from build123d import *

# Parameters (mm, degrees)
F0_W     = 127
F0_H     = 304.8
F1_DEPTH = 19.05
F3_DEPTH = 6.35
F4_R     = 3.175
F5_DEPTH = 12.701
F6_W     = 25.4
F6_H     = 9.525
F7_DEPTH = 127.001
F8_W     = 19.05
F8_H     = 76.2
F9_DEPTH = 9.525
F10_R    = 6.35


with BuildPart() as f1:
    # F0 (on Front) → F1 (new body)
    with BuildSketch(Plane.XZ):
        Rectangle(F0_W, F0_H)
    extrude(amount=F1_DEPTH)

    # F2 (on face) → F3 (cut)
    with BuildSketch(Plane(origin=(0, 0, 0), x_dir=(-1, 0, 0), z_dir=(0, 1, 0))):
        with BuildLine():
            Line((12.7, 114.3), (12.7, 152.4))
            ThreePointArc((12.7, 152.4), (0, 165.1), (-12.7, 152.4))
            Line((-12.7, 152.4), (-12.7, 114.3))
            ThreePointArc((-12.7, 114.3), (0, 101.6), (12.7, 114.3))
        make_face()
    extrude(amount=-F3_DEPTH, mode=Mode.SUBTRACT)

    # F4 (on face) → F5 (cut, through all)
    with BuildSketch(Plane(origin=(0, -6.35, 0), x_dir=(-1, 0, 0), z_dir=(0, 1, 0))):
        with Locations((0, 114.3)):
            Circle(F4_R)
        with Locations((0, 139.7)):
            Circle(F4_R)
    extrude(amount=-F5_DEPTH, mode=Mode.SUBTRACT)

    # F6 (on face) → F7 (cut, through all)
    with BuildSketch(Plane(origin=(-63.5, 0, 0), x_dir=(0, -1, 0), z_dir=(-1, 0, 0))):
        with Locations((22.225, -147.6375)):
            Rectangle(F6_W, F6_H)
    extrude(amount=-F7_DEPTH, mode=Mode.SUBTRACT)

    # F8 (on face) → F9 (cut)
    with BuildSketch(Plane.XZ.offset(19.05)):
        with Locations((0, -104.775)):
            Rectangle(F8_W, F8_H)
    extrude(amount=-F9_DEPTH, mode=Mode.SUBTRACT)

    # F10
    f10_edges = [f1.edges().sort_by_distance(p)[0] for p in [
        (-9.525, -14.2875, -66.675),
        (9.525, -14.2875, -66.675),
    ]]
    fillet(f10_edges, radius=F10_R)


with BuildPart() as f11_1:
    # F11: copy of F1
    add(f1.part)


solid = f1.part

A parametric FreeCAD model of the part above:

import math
import FreeCAD as App
import Part
import Sketcher
Q = App.Units.Quantity


def edges_at(feature, points):
    """Names of the edges that pass closest to the given points."""
    edges = feature.Shape.Edges
    near = lambda p: min(range(len(edges)), key=lambda i: edges[i].distToShape(Part.Vertex(*p))[0])
    return sorted({f"Edge{near(p) + 1}" for p in points})


def add_polygon(sketch, points):
    """Adds a closed chain of lines whose ends are joined by coincident constraints."""
    first, n = sketch.GeometryCount, len(points)
    for a, b in zip(points, points[1:] + points[:1]):
        sketch.addGeometry(Part.LineSegment(App.Vector(*a, 0), App.Vector(*b, 0)), False)
    for i in range(n):
        sketch.addConstraint(Sketcher.Constraint("Coincident", first + i, 2, first + (i + 1) % n, 1))

doc = App.newDocument("Part")
body = doc.addObject("PartDesign::Body", "Body")

# Sketch on XZ plane
sketch1 = doc.addObject("Sketcher::SketchObject", "Sketch")
body.addObject(sketch1)
sketch1.AttachmentSupport = (doc.XZ_Plane, [""])
sketch1.MapMode = "FlatFace"
add_polygon(sketch1, [(-64, 152), (-64, -152), (64, -152), (64, 152)])  # lines 0-3
sketch1.addConstraint(Sketcher.Constraint("Vertical", 0))
sketch1.addConstraint(Sketcher.Constraint("Horizontal", 1))
sketch1.addConstraint(Sketcher.Constraint("Vertical", 2))
sketch1.addConstraint(Sketcher.Constraint("Horizontal", 3))
sketch1.addConstraint(Sketcher.Constraint("Symmetric", 0, 2, 2, 2, -1, 1))
sketch1.addConstraint(Sketcher.Constraint("DistanceX", 1, 1, 1, 2, Q("5 in")))
sketch1.addConstraint(Sketcher.Constraint("DistanceY", 0, 2, 0, 1, Q("12 in")))
pad1 = doc.addObject("PartDesign::Pad", "Pad")
body.addObject(pad1)
pad1.Profile = sketch1
pad1.Length = Q("0.75 in")

# Sketch on XZ plane
sketch2 = doc.addObject("Sketcher::SketchObject", "Sketch001")
body.addObject(sketch2)
sketch2.AttachmentSupport = (doc.XZ_Plane, [""])
sketch2.MapMode = "FlatFace"
sketch2.addGeometry(Part.LineSegment(App.Vector(-13, 114, 0), App.Vector(-13, 152, 0)), False)
sketch2.addGeometry(Part.ArcOfCircle(Part.Circle(App.Vector(0, 152, 0), App.Vector(0, 0, 1), 13), math.radians(0), math.radians(180)), False)
sketch2.addGeometry(Part.LineSegment(App.Vector(13, 152, 0), App.Vector(13, 114, 0)), False)
sketch2.addGeometry(Part.ArcOfCircle(Part.Circle(App.Vector(0, 114, 0), App.Vector(0, 0, 1), 13), math.radians(180), math.radians(360)), False)
sketch2.addConstraint(Sketcher.Constraint("Tangent", 0, 2, 1, 2))
sketch2.addConstraint(Sketcher.Constraint("Tangent", 1, 1, 2, 1))
sketch2.addConstraint(Sketcher.Constraint("Tangent", 2, 2, 3, 2))
sketch2.addConstraint(Sketcher.Constraint("Tangent", 3, 1, 0, 1))
sketch2.addConstraint(Sketcher.Constraint("Vertical", 0))
sketch2.addConstraint(Sketcher.Constraint("Vertical", 2))
sketch2.addConstraint(Sketcher.Constraint("PointOnObject", 1, 3, -2))
sketch2.addConstraint(Sketcher.Constraint("Radius", 1, Q("0.5 in")))
sketch2.addConstraint(Sketcher.Constraint("DistanceY", 0, 1, 0, 2, Q("1.5 in")))
sketch2.addConstraint(Sketcher.Constraint("DistanceY", -1, 1, 1, 3, Q("6 in")))
pocket1 = doc.addObject("PartDesign::Pocket", "Pocket")
body.addObject(pocket1)
pocket1.Profile = sketch2
pocket1.Length = Q("0.25 in")
pocket1.Reversed = True

# Sketch on XZ plane
sketch3 = doc.addObject("Sketcher::SketchObject", "Sketch002")
body.addObject(sketch3)
sketch3.AttachmentSupport = (doc.XZ_Plane, [""])
sketch3.MapMode = "FlatFace"
sketch3.AttachmentOffset = App.Placement(App.Vector(0, 0, 0.25 * 25.4), App.Rotation())
sketch3.addGeometry(Part.Circle(App.Vector(0, 114.3, 0), App.Vector(0, 0, 1), 3.2), False)
sketch3.addGeometry(Part.Circle(App.Vector(0, 139.7, 0), App.Vector(0, 0, 1), 3.2), False)
sketch3.addConstraint(Sketcher.Constraint("Equal", 0, 1))
sketch3.addConstraint(Sketcher.Constraint("PointOnObject", 0, 3, -2))
sketch3.addConstraint(Sketcher.Constraint("PointOnObject", 1, 3, -2))
sketch3.addConstraint(Sketcher.Constraint("Diameter", 0, Q("0.25 in")))
sketch3.addConstraint(Sketcher.Constraint("DistanceY", 0, 3, 1, 3, Q("1 in")))
sketch3.addConstraint(Sketcher.Constraint("DistanceY", -1, 1, 0, 3, Q("4.5 in")))
pocket2 = doc.addObject("PartDesign::Pocket", "Pocket001")
body.addObject(pocket2)
pocket2.Profile = sketch3
pocket2.Type = "ThroughAll"
pocket2.Reversed = True

# Sketch on YZ plane
sketch4 = doc.addObject("Sketcher::SketchObject", "Sketch003")
body.addObject(sketch4)
sketch4.AttachmentSupport = (doc.YZ_Plane, [""])
sketch4.MapMode = "FlatFace"
sketch4.AttachmentOffset = App.Placement(App.Vector(0, 0, -2.5 * 25.4), App.Rotation())
add_polygon(sketch4, [(-10, -143), (-10, -152), (-35, -152), (-35, -143)])  # lines 0-3
sketch4.addConstraint(Sketcher.Constraint("Vertical", 0))
sketch4.addConstraint(Sketcher.Constraint("Horizontal", 1))
sketch4.addConstraint(Sketcher.Constraint("Vertical", 2))
sketch4.addConstraint(Sketcher.Constraint("Horizontal", 3))
sketch4.addConstraint(Sketcher.Constraint("DistanceX", 1, 2, 1, 1, Q("1 in")))
sketch4.addConstraint(Sketcher.Constraint("DistanceY", 0, 2, -1, 1, Q("6 in")))
sketch4.addConstraint(Sketcher.Constraint("DistanceY", 0, 2, 0, 1, Q("0.375 in")))
sketch4.addConstraint(Sketcher.Constraint("DistanceX", 0, 2, -1, 1, Q("0.375 in")))
pocket3 = doc.addObject("PartDesign::Pocket", "Pocket002")
body.addObject(pocket3)
pocket3.Profile = sketch4
pocket3.Type = "ThroughAll"
pocket3.Reversed = True

# Sketch on XZ plane
sketch5 = doc.addObject("Sketcher::SketchObject", "Sketch004")
body.addObject(sketch5)
sketch5.AttachmentSupport = (doc.XZ_Plane, [""])
sketch5.MapMode = "FlatFace"
sketch5.AttachmentOffset = App.Placement(App.Vector(0, 0, 0.75 * 25.4), App.Rotation())
add_polygon(sketch5, [(-10, -67), (-10, -143), (10, -143), (10, -67)])  # lines 0-3
sketch5.addConstraint(Sketcher.Constraint("Vertical", 0))
sketch5.addConstraint(Sketcher.Constraint("Horizontal", 1))
sketch5.addConstraint(Sketcher.Constraint("Vertical", 2))
sketch5.addConstraint(Sketcher.Constraint("Horizontal", 3))
sketch5.addConstraint(Sketcher.Constraint("DistanceY", 0, 2, 0, 1, Q("3 in")))
sketch5.addConstraint(Sketcher.Constraint("DistanceX", 1, 1, 1, 2, Q("0.75 in")))
sketch5.addConstraint(Sketcher.Constraint("DistanceX", 0, 2, -1, 1, Q("0.375 in")))
sketch5.addConstraint(Sketcher.Constraint("DistanceY", 0, 2, -1, 1, Q("5.625 in")))
pocket4 = doc.addObject("PartDesign::Pocket", "Pocket003")
body.addObject(pocket4)
pocket4.Profile = sketch5
pocket4.Length = Q("0.375 in")
doc.recompute()

fillet = doc.addObject("PartDesign::Fillet", "Fillet")
body.addObject(fillet)
fillet.Base = (pocket4, edges_at(pocket4, [(-9.525, -14.287, -66.675), (9.525, -14.287, -66.675)]))
fillet.Radius = Q("0.25 in")
body2 = doc.addObject("PartDesign::Body", "Body001")
doc.recompute()

body2.BaseFeature = body
doc.recompute()
body.Visibility = False

doc.recompute()
